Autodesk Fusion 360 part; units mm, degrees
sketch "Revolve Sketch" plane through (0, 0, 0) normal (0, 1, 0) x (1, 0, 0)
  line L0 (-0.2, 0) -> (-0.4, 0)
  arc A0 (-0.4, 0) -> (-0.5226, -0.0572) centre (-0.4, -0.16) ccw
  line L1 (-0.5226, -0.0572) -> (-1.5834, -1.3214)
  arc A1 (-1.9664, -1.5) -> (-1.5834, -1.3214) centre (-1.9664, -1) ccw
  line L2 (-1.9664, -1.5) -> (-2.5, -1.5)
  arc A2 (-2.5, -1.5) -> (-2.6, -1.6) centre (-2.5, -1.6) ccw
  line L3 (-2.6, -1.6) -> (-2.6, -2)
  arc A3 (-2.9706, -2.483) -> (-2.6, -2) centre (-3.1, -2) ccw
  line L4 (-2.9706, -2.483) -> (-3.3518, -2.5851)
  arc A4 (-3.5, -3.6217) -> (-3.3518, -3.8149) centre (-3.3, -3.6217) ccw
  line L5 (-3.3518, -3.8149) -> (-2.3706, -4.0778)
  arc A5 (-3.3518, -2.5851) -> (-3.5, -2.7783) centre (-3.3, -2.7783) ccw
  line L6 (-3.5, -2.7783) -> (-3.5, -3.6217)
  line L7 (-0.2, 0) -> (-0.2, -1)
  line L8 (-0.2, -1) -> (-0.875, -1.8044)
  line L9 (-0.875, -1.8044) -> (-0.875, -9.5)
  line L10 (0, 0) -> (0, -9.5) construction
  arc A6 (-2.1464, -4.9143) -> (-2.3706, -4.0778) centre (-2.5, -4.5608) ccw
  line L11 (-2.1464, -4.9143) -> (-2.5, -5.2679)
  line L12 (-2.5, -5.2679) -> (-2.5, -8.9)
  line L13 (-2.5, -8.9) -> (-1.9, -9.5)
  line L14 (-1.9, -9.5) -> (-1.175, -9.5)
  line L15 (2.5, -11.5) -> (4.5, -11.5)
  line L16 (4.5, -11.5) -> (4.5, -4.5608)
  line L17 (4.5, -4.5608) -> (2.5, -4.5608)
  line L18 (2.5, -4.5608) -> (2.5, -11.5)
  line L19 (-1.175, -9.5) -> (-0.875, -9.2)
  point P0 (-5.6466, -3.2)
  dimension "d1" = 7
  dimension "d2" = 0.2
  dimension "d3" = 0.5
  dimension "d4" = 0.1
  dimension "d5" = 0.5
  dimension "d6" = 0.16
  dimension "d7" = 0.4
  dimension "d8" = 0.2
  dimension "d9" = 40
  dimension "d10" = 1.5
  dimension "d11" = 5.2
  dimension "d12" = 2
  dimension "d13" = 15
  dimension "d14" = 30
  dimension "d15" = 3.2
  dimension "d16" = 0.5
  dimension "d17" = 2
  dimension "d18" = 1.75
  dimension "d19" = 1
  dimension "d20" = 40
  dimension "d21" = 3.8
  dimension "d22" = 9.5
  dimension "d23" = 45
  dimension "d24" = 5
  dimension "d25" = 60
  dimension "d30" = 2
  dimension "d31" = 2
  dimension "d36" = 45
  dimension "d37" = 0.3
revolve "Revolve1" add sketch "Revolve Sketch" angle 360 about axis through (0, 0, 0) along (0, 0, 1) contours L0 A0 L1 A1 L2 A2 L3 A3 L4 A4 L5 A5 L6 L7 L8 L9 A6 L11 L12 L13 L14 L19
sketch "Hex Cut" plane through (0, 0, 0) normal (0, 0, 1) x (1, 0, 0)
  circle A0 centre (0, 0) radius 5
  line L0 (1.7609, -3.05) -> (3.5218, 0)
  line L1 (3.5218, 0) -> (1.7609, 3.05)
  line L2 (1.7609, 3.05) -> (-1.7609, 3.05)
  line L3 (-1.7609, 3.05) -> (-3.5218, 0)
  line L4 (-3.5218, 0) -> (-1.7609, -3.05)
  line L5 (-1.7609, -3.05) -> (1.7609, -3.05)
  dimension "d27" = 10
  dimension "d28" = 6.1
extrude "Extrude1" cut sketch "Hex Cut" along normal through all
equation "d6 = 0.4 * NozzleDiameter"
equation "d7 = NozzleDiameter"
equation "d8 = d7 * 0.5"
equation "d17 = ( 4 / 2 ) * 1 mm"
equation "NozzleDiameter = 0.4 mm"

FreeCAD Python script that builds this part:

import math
import FreeCAD as App
import Part
import Sketcher
from FreeCAD import Vector
Q = App.Units.Quantity

doc = App.newDocument("Part")
params = doc.addObject("Spreadsheet::Sheet", "Params")
for row, (alias, value) in enumerate([
    ("sketch1_radius", "0.5 mm"),
    ("sketch1_radius2", "0.1 mm"),
    ("sketch1_radius3", "0.2 mm"),
    ("sketch1_height", "1 mm"),
    ("sketch1_radius4", "0.16 mm"),
    ("revolution_angle", "360 deg"),
    ("sketch2_diameter", "10 mm"),
], start=1):
    params.set(f"A{row}", alias)
    params.set(f"B{row}", "=" + value)
    params.setAlias(f"B{row}", alias)

body = doc.addObject("PartDesign::Body", "Body")

# Sketch on XZ plane
sketch1 = body.newObject("Sketcher::SketchObject", "Sketch")
sketch1.AttachmentSupport = (doc.getObject("XZ_Plane"), [""])
sketch1.MapMode = "FlatFace"
sketch1.addGeometry(Part.LineSegment(Vector(-0.2, 1, 0), Vector(-0.2, 0, 0)), False)
sketch1.addGeometry(Part.LineSegment(Vector(-0.2, 0, 0), Vector(-0.4, 0, 0)), False)
sketch1.addGeometry(Part.ArcOfCircle(Part.Circle(Vector(-0.4, 0.16, 0), Vector(0, 0, 1), 0.16), math.radians(-140), math.radians(-90)), False)
sketch1.addGeometry(Part.LineSegment(Vector(-0.52, 0.06, 0), Vector(-1.58, 1.32, 0)), False)
sketch1.addGeometry(Part.ArcOfCircle(Part.Circle(Vector(-1.97, 1, 0), Vector(0, 0, 1), 0.5), math.radians(40), math.radians(90)), False)
sketch1.addGeometry(Part.LineSegment(Vector(-1.97, 1.5, 0), Vector(-2.5, 1.5, 0)), False)
sketch1.addGeometry(Part.ArcOfCircle(Part.Circle(Vector(-2.5, 1.6, 0), Vector(0, 0, 1), 0.1), math.radians(180), math.radians(270)), False)
sketch1.addGeometry(Part.LineSegment(Vector(-2.6, 1.6, 0), Vector(-2.6, 2, 0)), False)
sketch1.addGeometry(Part.ArcOfCircle(Part.Circle(Vector(-3.1, 2, 0), Vector(0, 0, 1), 0.5), math.radians(0), math.radians(75)), False)
sketch1.addGeometry(Part.LineSegment(Vector(-2.97, 2.48, 0), Vector(-3.35, 2.59, 0)), False)
sketch1.addGeometry(Part.ArcOfCircle(Part.Circle(Vector(-3.3, 2.78, 0), Vector(0, 0, 1), 0.2), math.radians(180), math.radians(255)), False)
sketch1.addGeometry(Part.LineSegment(Vector(-3.5, 2.78, 0), Vector(-3.5, 3.62, 0)), False)
sketch1.addGeometry(Part.ArcOfCircle(Part.Circle(Vector(-3.3, 3.62, 0), Vector(0, 0, 1), 0.2), math.radians(105), math.radians(180)), False)
sketch1.addGeometry(Part.LineSegment(Vector(-3.35, 3.81, 0), Vector(-2.37, 4.08, 0)), False)
sketch1.addGeometry(Part.ArcOfCircle(Part.Circle(Vector(-2.5, 4.56, 0), Vector(0, 0, 1), 0.5), math.radians(-75), math.radians(45)), False)
sketch1.addGeometry(Part.LineSegment(Vector(-2.15, 4.91, 0), Vector(-2.5, 5.27, 0)), False)
sketch1.addGeometry(Part.LineSegment(Vector(-2.5, 5.27, 0), Vector(-2.5, 8.9, 0)), False)
sketch1.addGeometry(Part.LineSegment(Vector(-2.5, 8.9, 0), Vector(-1.9, 9.5, 0)), False)
sketch1.addGeometry(Part.LineSegment(Vector(-1.9, 9.5, 0), Vector(-1.18, 9.5, 0)), False)
sketch1.addGeometry(Part.LineSegment(Vector(-1.18, 9.5, 0), Vector(-0.88, 9.2, 0)), False)
sketch1.addGeometry(Part.LineSegment(Vector(-0.88, 9.2, 0), Vector(-0.88, 1.8, 0)), False)
sketch1.addGeometry(Part.LineSegment(Vector(-0.88, 1.8, 0), Vector(-0.2, 1, 0)), False)
sketch1.addConstraint(Sketcher.Constraint("Coincident", 0, 2, 1, 1))
sketch1.addConstraint(Sketcher.Constraint("Tangent", 1, 2, 2, 2))
sketch1.addConstraint(Sketcher.Constraint("Tangent", 2, 1, 3, 1))
sketch1.addConstraint(Sketcher.Constraint("Tangent", 3, 2, 4, 1))
sketch1.addConstraint(Sketcher.Constraint("Tangent", 4, 2, 5, 1))
sketch1.addConstraint(Sketcher.Constraint("Tangent", 5, 2, 6, 2))
sketch1.addConstraint(Sketcher.Constraint("Tangent", 6, 1, 7, 1))
sketch1.addConstraint(Sketcher.Constraint("Tangent", 7, 2, 8, 1))
sketch1.addConstraint(Sketcher.Constraint("Tangent", 8, 2, 9, 1))
sketch1.addConstraint(Sketcher.Constraint("Tangent", 9, 2, 10, 2))
sketch1.addConstraint(Sketcher.Constraint("Tangent", 10, 1, 11, 1))
sketch1.addConstraint(Sketcher.Constraint("Tangent", 11, 2, 12, 2))
sketch1.addConstraint(Sketcher.Constraint("Tangent", 12, 1, 13, 1))
sketch1.addConstraint(Sketcher.Constraint("Tangent", 13, 2, 14, 1))
sketch1.addConstraint(Sketcher.Constraint("Tangent", 14, 2, 15, 1))
sketch1.addConstraint(Sketcher.Constraint("Coincident", 15, 2, 16, 1))
sketch1.addConstraint(Sketcher.Constraint("Coincident", 16, 2, 17, 1))
sketch1.addConstraint(Sketcher.Constraint("Coincident", 17, 2, 18, 1))
sketch1.addConstraint(Sketcher.Constraint("Coincident", 18, 2, 19, 1))
sketch1.addConstraint(Sketcher.Constraint("Coincident", 19, 2, 20, 1))
sketch1.addConstraint(Sketcher.Constraint("Coincident", 20, 2, 21, 1))
sketch1.addConstraint(Sketcher.Constraint("Coincident", 21, 2, 0, 1))
sketch1.addConstraint(Sketcher.Constraint("Vertical", 0))
sketch1.addConstraint(Sketcher.Constraint("Horizontal", 1))
sketch1.addConstraint(Sketcher.Constraint("Horizontal", 5))
sketch1.addConstraint(Sketcher.Constraint("Vertical", 7))
sketch1.addConstraint(Sketcher.Constraint("Vertical", 11))
sketch1.addConstraint(Sketcher.Constraint("Vertical", 16))
sketch1.addConstraint(Sketcher.Constraint("Horizontal", 18))
sketch1.addConstraint(Sketcher.Constraint("Vertical", 20))
sketch1.addConstraint(Sketcher.Constraint("Equal", 4, 8))
sketch1.addConstraint(Sketcher.Constraint("Equal", 10, 12))
sketch1.addConstraint(Sketcher.Constraint("Equal", 8, 14))
sketch1.addConstraint(Sketcher.Constraint("PointOnObject", 0, 2, -1))
sketch1.addConstraint(Sketcher.Constraint("Perpendicular", 15, 17))
sketch1.addConstraint(Sketcher.Constraint("Perpendicular", 17, 19))
sketch1.addConstraint(Sketcher.Constraint("Parallel", 3, 21))
sketch1.addConstraint(Sketcher.Constraint("Horizontal", 4, 3, 21, 2))
sketch1.addConstraint(Sketcher.Constraint("Vertical", 6, 3, 14, 3))
sketch1.addConstraint(Sketcher.Constraint("Vertical", 9, 2, 12, 1))
sketch1.addConstraint(Sketcher.Constraint("Vertical", 5, 2, 15, 2))
sketch1.addConstraint(Sketcher.Constraint("Radius", 4, Q("0.5 mm")))
sketch1.addConstraint(Sketcher.Constraint("Radius", 6, Q("0.1 mm")))
sketch1.addConstraint(Sketcher.Constraint("Radius", 10, Q("0.2 mm")))
sketch1.addConstraint(Sketcher.Constraint("DistanceY", 0, 2, 0, 1, Q("1 mm")))
sketch1.addConstraint(Sketcher.Constraint("Angle", 17, Q("45 deg")))
sketch1.addConstraint(Sketcher.Constraint("Radius", 2, Q("0.16 mm")))
sketch1.addConstraint(Sketcher.Constraint("DistanceX", 1, 2, 1, 1, Q("0.2 mm")))
sketch1.addConstraint(Sketcher.Constraint("DistanceY", 7, 1, 7, 2, Q("0.4 mm")))
sketch1.addConstraint(Sketcher.Constraint("DistanceX", 2, 3, -1, 1, Q("0.4 mm")))
sketch1.addConstraint(Sketcher.Constraint("DistanceY", -1, 1, 17, 2, Q("9.5 mm")))
sketch1.addConstraint(Sketcher.Constraint("DistanceX", 10, 3, 8, 3, Q("0.2 mm")))
sketch1.addConstraint(Sketcher.Constraint("DistanceX", 18, 2, 19, 2, Q("0.3 mm")))
sketch1.addConstraint(Sketcher.Constraint("DistanceY", 16, 2, 19, 2, Q("0.3 mm")))
sketch1.addConstraint(Sketcher.Constraint("Angle", 3, Q("130.0003 deg")))
sketch1.addConstraint(Sketcher.Constraint("Angle", 13, Q("14.9994 deg")))
sketch1.addConstraint(Sketcher.Constraint("DistanceX", 6, 3, -1, 1, Q("2.5 mm")))
sketch1.addConstraint(Sketcher.Constraint("Distance", 21, Q("1.05 mm")))
sketch1.addConstraint(Sketcher.Constraint("DistanceY", 16, 1, 16, 2, Q("3.632 mm")))
sketch1.setExpression("Constraints[41]", "Params.sketch1_radius")
sketch1.setExpression("Constraints[42]", "Params.sketch1_radius2")
sketch1.setExpression("Constraints[43]", "Params.sketch1_radius3")
sketch1.setExpression("Constraints[44]", "Params.sketch1_height")
sketch1.setExpression("Constraints[46]", "Params.sketch1_radius4")
revolution = body.newObject("PartDesign::Revolution", "Revolution")
revolution.Profile = sketch1
revolution.ReferenceAxis = (sketch1, ["V_Axis"])
revolution.setExpression("Angle", "Params.revolution_angle")

# Sketch on XY plane
sketch2 = body.newObject("Sketcher::SketchObject", "Sketch001")
sketch2.AttachmentSupport = (doc.getObject("XY_Plane"), [""])
sketch2.MapMode = "FlatFace"
sketch2.addGeometry(Part.Circle(Vector(0, 0, 0), Vector(0, 0, 1), 5), False)
sketch2.addGeometry(Part.LineSegment(Vector(3.5, 0, 0), Vector(1.8, -3, 0)), False)
sketch2.addGeometry(Part.LineSegment(Vector(1.8, -3, 0), Vector(-1.8, -3, 0)), False)
sketch2.addGeometry(Part.LineSegment(Vector(-1.8, -3, 0), Vector(-3.5, 0, 0)), False)
sketch2.addGeometry(Part.LineSegment(Vector(-3.5, 0, 0), Vector(-1.8, 3, 0)), False)
sketch2.addGeometry(Part.LineSegment(Vector(-1.8, 3, 0), Vector(1.8, 3, 0)), False)
sketch2.addGeometry(Part.LineSegment(Vector(1.8, 3, 0), Vector(3.5, 0, 0)), False)
sketch2.addConstraint(Sketcher.Constraint("Coincident", 1, 2, 2, 1))
sketch2.addConstraint(Sketcher.Constraint("Coincident", 2, 2, 3, 1))
sketch2.addConstraint(Sketcher.Constraint("Coincident", 3, 2, 4, 1))
sketch2.addConstraint(Sketcher.Constraint("Coincident", 4, 2, 5, 1))
sketch2.addConstraint(Sketcher.Constraint("Coincident", 5, 2, 6, 1))
sketch2.addConstraint(Sketcher.Constraint("Coincident", 6, 2, 1, 1))
sketch2.addConstraint(Sketcher.Constraint("Horizontal", 2))
sketch2.addConstraint(Sketcher.Constraint("Horizontal", 5))
sketch2.addConstraint(Sketcher.Constraint("Coincident", 0, 3, -1, 1))
sketch2.addConstraint(Sketcher.Constraint("Symmetric", 1, 2, 4, 2, -1, 1))
sketch2.addConstraint(Sketcher.Constraint("Symmetric", 3, 2, 6, 2, -1, 1))
sketch2.addConstraint(Sketcher.Constraint("PointOnObject", 3, 2, -1))
sketch2.addConstraint(Sketcher.Constraint("Parallel", 3, 6))
sketch2.addConstraint(Sketcher.Constraint("Vertical", 2, 2, 4, 2))
sketch2.addConstraint(Sketcher.Constraint("Diameter", 0, Q("10 mm")))
sketch2.addConstraint(Sketcher.Constraint("DistanceY", 2, 2, 4, 2, Q("6.1 mm")))
sketch2.addConstraint(Sketcher.Constraint("Angle", 1, Q("-119.9997 deg")))
sketch2.addConstraint(Sketcher.Constraint("DistanceX", 2, 2, 2, 1, Q("3.5218 mm")))
sketch2.setExpression("Constraints[14]", "Params.sketch2_diameter")
pocket1 = body.newObject("PartDesign::Pocket", "Pocket")
pocket1.Profile = sketch2
pocket1.Type = "ThroughAll"
pocket1.Reversed = True

doc.recompute()
